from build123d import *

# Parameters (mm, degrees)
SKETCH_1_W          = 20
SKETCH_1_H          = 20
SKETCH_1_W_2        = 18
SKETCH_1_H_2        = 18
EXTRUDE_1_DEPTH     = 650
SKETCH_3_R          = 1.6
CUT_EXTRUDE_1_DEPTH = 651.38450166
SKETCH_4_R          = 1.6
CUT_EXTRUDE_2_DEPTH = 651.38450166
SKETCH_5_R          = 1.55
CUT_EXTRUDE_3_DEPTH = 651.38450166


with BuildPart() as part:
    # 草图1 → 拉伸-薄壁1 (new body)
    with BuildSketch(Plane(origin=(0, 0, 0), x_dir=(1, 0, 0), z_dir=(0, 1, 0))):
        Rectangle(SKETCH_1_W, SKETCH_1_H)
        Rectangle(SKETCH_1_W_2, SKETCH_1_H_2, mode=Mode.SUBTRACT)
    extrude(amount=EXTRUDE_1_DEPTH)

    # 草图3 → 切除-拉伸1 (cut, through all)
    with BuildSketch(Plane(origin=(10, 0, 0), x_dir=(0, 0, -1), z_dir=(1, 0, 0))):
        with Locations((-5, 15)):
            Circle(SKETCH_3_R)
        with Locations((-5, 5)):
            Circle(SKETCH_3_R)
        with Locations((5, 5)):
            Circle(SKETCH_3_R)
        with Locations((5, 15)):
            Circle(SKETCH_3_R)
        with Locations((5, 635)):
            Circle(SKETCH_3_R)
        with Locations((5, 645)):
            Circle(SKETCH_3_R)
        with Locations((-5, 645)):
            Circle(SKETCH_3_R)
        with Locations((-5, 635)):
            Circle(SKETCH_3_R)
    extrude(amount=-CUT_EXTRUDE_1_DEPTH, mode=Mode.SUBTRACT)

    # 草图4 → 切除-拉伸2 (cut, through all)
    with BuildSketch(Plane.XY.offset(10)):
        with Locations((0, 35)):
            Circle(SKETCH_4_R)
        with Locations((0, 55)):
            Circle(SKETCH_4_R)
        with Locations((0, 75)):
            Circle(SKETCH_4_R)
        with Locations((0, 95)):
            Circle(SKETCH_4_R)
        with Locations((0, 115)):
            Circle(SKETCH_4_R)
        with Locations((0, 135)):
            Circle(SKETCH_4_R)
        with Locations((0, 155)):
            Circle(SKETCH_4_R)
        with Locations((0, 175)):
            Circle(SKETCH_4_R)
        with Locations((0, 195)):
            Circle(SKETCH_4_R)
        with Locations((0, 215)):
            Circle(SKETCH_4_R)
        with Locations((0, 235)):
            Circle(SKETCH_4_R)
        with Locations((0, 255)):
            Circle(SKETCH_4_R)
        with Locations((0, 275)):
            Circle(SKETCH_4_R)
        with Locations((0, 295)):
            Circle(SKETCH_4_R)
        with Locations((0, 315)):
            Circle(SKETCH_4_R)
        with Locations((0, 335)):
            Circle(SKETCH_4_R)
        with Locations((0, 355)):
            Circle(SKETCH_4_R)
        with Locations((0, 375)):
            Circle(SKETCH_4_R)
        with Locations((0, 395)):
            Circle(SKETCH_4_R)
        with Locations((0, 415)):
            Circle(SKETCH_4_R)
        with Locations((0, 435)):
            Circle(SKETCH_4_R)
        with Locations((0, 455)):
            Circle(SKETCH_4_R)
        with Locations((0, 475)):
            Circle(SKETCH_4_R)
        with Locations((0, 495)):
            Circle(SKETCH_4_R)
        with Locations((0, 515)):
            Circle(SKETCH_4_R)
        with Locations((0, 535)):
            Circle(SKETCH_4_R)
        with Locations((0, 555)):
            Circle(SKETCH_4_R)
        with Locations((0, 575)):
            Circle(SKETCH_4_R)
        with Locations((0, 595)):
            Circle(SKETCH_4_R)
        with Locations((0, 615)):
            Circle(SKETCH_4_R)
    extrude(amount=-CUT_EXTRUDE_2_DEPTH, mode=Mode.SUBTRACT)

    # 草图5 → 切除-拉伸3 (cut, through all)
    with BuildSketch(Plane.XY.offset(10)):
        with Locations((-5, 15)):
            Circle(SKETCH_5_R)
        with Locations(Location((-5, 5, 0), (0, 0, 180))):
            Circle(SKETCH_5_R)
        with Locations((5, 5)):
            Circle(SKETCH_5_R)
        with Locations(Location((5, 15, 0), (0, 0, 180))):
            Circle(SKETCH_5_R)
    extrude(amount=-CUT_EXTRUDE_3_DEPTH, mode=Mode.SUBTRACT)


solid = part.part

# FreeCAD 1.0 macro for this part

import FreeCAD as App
import Part
import Sketcher
from FreeCAD import Vector

doc = App.newDocument("Part")
body = doc.addObject("PartDesign::Body", "Body")

sketch1 = body.newObject("Sketcher::SketchObject", "Sketch")
sketch1.AttachmentSupport = (doc.getObject("XZ_Plane"), [""])
sketch1.MapMode = "FlatFace"
sketch1.addGeometry([
    Part.LineSegment(Vector(-10, -10, 0), Vector(-10, 10, 0)),
    Part.LineSegment(Vector(-10, 10, 0), Vector(10, 10, 0)),
    Part.LineSegment(Vector(10, 10, 0), Vector(10, -10, 0)),
    Part.LineSegment(Vector(10, -10, 0), Vector(-10, -10, 0)),
    Part.LineSegment(Vector(9, 9, 0), Vector(-9, 9, 0)),
    Part.LineSegment(Vector(-9, 9, 0), Vector(-9, -9, 0)),
    Part.LineSegment(Vector(-9, -9, 0), Vector(9, -9, 0)),
    Part.LineSegment(Vector(9, -9, 0), Vector(9, 9, 0)),
], False)
sketch1.addConstraint([
    Sketcher.Constraint("Coincident", 0, 2, 1, 1),
    Sketcher.Constraint("Coincident", 1, 2, 2, 1),
    Sketcher.Constraint("Coincident", 2, 2, 3, 1),
    Sketcher.Constraint("Coincident", 3, 2, 0, 1),
    Sketcher.Constraint("Coincident", 4, 2, 5, 1),
    Sketcher.Constraint("Coincident", 5, 2, 6, 1),
    Sketcher.Constraint("Coincident", 6, 2, 7, 1),
    Sketcher.Constraint("Coincident", 7, 2, 4, 1),
    Sketcher.Constraint("Vertical", 0),
    Sketcher.Constraint("Horizontal", 1),
    Sketcher.Constraint("Vertical", 2),
    Sketcher.Constraint("Horizontal", 3),
    Sketcher.Constraint("Horizontal", 4),
    Sketcher.Constraint("Vertical", 5),
    Sketcher.Constraint("Horizontal", 6),
    Sketcher.Constraint("Vertical", 7),
    Sketcher.Constraint("Symmetric", 0, 2, 2, 2, -1, 1),
    Sketcher.Constraint("Symmetric", 4, 2, 6, 2, -1, 1),
    Sketcher.Constraint("Equal", 3, 0),
    Sketcher.Constraint("Equal", 6, 5),
    Sketcher.Constraint("DistanceX", 1, 1, 1, 2, 20.0),
    Sketcher.Constraint("DistanceX", 4, 2, 4, 1, 18.0),
])
pad1 = body.newObject("PartDesign::Pad", "Pad")
pad1.Profile = sketch1
pad1.Length = 650
pad1.Reversed = True

sketch2 = body.newObject("Sketcher::SketchObject", "Sketch001")
sketch2.AttachmentSupport = (doc.getObject("YZ_Plane"), [""])
sketch2.MapMode = "FlatFace"
sketch2.AttachmentOffset = App.Placement(Vector(0, 0, 10), App.Rotation())
sketch2.addGeometry([
    Part.Circle(Vector(15, 5, 0), Vector(0, 0, 1), 1.6),
    Part.Circle(Vector(5, 5, 0), Vector(0, 0, 1), 1.6),
    Part.Circle(Vector(5, -5, 0), Vector(0, 0, 1), 1.6),
    Part.Circle(Vector(15, -5, 0), Vector(0, 0, 1), 1.6),
    Part.Circle(Vector(635, -5, 0), Vector(0, 0, 1), 1.6),
    Part.Circle(Vector(645, -5, 0), Vector(0, 0, 1), 1.6),
    Part.Circle(Vector(645, 5, 0), Vector(0, 0, 1), 1.6),
    Part.Circle(Vector(635, 5, 0), Vector(0, 0, 1), 1.6),
], False)
sketch2.addConstraint([
    Sketcher.Constraint("Equal", 0, 1),
    Sketcher.Constraint("Equal", 1, 2),
    Sketcher.Constraint("Equal", 2, 3),
    Sketcher.Constraint("Equal", 3, 4),
    Sketcher.Constraint("Equal", 4, 5),
    Sketcher.Constraint("Equal", 5, 6),
    Sketcher.Constraint("Equal", 6, 7),
    Sketcher.Constraint("Symmetric", 1, 3, 2, 3, -1),
    Sketcher.Constraint("Symmetric", 0, 3, 3, 3, -1),
    Sketcher.Constraint("Symmetric", 5, 3, 6, 3, -1),
    Sketcher.Constraint("Symmetric", 4, 3, 7, 3, -1),
    Sketcher.Constraint("Horizontal", 0, 3, 1, 3),
    Sketcher.Constraint("Horizontal", 3, 3, 4, 3),
    Sketcher.Constraint("Horizontal", 4, 3, 5, 3),
    Sketcher.Constraint("Diameter", 0, 3.2),
    Sketcher.Constraint("DistanceX", -1, 1, 0, 3, 15.0),
    Sketcher.Constraint("DistanceY", -1, 1, 0, 3, 5.0),
    Sketcher.Constraint("DistanceX", -1, 1, 1, 3, 5.0),
    Sketcher.Constraint("DistanceX", -1, 1, 4, 3, 635.0),
    Sketcher.Constraint("DistanceX", -1, 1, 5, 3, 645.0),
])
pocket1 = body.newObject("PartDesign::Pocket", "Pocket")
pocket1.Profile = sketch2
pocket1.Type = "ThroughAll"

sketch3 = body.newObject("Sketcher::SketchObject", "Sketch002")
sketch3.AttachmentSupport = (doc.getObject("XY_Plane"), [""])
sketch3.MapMode = "FlatFace"
sketch3.AttachmentOffset = App.Placement(Vector(0, 0, 10), App.Rotation())
sketch3.addGeometry([
    Part.Circle(Vector(0, 35, 0), Vector(0, 0, 1), 1.6),
    Part.Circle(Vector(0, 55, 0), Vector(0, 0, 1), 1.6),
    Part.Circle(Vector(0, 75, 0), Vector(0, 0, 1), 1.6),
    Part.Circle(Vector(0, 95, 0), Vector(0, 0, 1), 1.6),
    Part.Circle(Vector(0, 115, 0), Vector(0, 0, 1), 1.6),
    Part.Circle(Vector(0, 135, 0), Vector(0, 0, 1), 1.6),
    Part.Circle(Vector(0, 155, 0), Vector(0, 0, 1), 1.6),
    Part.Circle(Vector(0, 175, 0), Vector(0, 0, 1), 1.6),
    Part.Circle(Vector(0, 195, 0), Vector(0, 0, 1), 1.6),
    Part.Circle(Vector(0, 215, 0), Vector(0, 0, 1), 1.6),
    Part.Circle(Vector(0, 235, 0), Vector(0, 0, 1), 1.6),
    Part.Circle(Vector(0, 255, 0), Vector(0, 0, 1), 1.6),
    Part.Circle(Vector(0, 275, 0), Vector(0, 0, 1), 1.6),
    Part.Circle(Vector(0, 295, 0), Vector(0, 0, 1), 1.6),
    Part.Circle(Vector(0, 315, 0), Vector(0, 0, 1), 1.6),
    Part.Circle(Vector(0, 335, 0), Vector(0, 0, 1), 1.6),
    Part.Circle(Vector(0, 355, 0), Vector(0, 0, 1), 1.6),
    Part.Circle(Vector(0, 375, 0), Vector(0, 0, 1), 1.6),
    Part.Circle(Vector(0, 395, 0), Vector(0, 0, 1), 1.6),
    Part.Circle(Vector(0, 415, 0), Vector(0, 0, 1), 1.6),
    Part.Circle(Vector(0, 435, 0), Vector(0, 0, 1), 1.6),
    Part.Circle(Vector(0, 455, 0), Vector(0, 0, 1), 1.6),
    Part.Circle(Vector(0, 475, 0), Vector(0, 0, 1), 1.6),
    Part.Circle(Vector(0, 495, 0), Vector(0, 0, 1), 1.6),
    Part.Circle(Vector(0, 515, 0), Vector(0, 0, 1), 1.6),
    Part.Circle(Vector(0, 535, 0), Vector(0, 0, 1), 1.6),
    Part.Circle(Vector(0, 555, 0), Vector(0, 0, 1), 1.6),
    Part.Circle(Vector(0, 575, 0), Vector(0, 0, 1), 1.6),
    Part.Circle(Vector(0, 595, 0), Vector(0, 0, 1), 1.6),
    Part.Circle(Vector(0, 615, 0), Vector(0, 0, 1), 1.6),
], False)
sketch3.addConstraint([
    Sketcher.Constraint("Equal", 0, 1),
    Sketcher.Constraint("Equal", 1, 2),
    Sketcher.Constraint("Equal", 2, 3),
    Sketcher.Constraint("Equal", 3, 4),
    Sketcher.Constraint("Equal", 4, 5),
    Sketcher.Constraint("Equal", 5, 6),
    Sketcher.Constraint("Equal", 6, 7),
    Sketcher.Constraint("Equal", 7, 8),
    Sketcher.Constraint("Equal", 8, 9),
    Sketcher.Constraint("Equal", 9, 10),
    Sketcher.Constraint("Equal", 10, 11),
    Sketcher.Constraint("Equal", 11, 12),
    Sketcher.Constraint("Equal", 12, 13),
    Sketcher.Constraint("Equal", 13, 14),
    Sketcher.Constraint("Equal", 14, 15),
    Sketcher.Constraint("Equal", 15, 16),
    Sketcher.Constraint("Equal", 16, 17),
    Sketcher.Constraint("Equal", 17, 18),
    Sketcher.Constraint("Equal", 18, 19),
    Sketcher.Constraint("Equal", 19, 20),
    Sketcher.Constraint("Equal", 20, 21),
    Sketcher.Constraint("Equal", 21, 22),
    Sketcher.Constraint("Equal", 22, 23),
    Sketcher.Constraint("Equal", 23, 24),
    Sketcher.Constraint("Equal", 24, 25),
    Sketcher.Constraint("Equal", 25, 26),
    Sketcher.Constraint("Equal", 26, 27),
    Sketcher.Constraint("Equal", 27, 28),
    Sketcher.Constraint("Equal", 28, 29),
    Sketcher.Constraint("PointOnObject", 0, 3, -2),
    Sketcher.Constraint("PointOnObject", 1, 3, -2),
    Sketcher.Constraint("PointOnObject", 2, 3, -2),
    Sketcher.Constraint("PointOnObject", 3, 3, -2),
    Sketcher.Constraint("PointOnObject", 4, 3, -2),
    Sketcher.Constraint("PointOnObject", 5, 3, -2),
    Sketcher.Constraint("PointOnObject", 6, 3, -2),
    Sketcher.Constraint("PointOnObject", 7, 3, -2),
    Sketcher.Constraint("PointOnObject", 8, 3, -2),
    Sketcher.Constraint("PointOnObject", 9, 3, -2),
    Sketcher.Constraint("PointOnObject", 10, 3, -2),
    Sketcher.Constraint("PointOnObject", 11, 3, -2),
    Sketcher.Constraint("PointOnObject", 12, 3, -2),
    Sketcher.Constraint("PointOnObject", 13, 3, -2),
    Sketcher.Constraint("PointOnObject", 14, 3, -2),
    Sketcher.Constraint("PointOnObject", 15, 3, -2),
    Sketcher.Constraint("PointOnObject", 16, 3, -2),
    Sketcher.Constraint("PointOnObject", 17, 3, -2),
    Sketcher.Constraint("PointOnObject", 18, 3, -2),
    Sketcher.Constraint("PointOnObject", 19, 3, -2),
    Sketcher.Constraint("PointOnObject", 20, 3, -2),
    Sketcher.Constraint("PointOnObject", 21, 3, -2),
    Sketcher.Constraint("PointOnObject", 22, 3, -2),
    Sketcher.Constraint("PointOnObject", 23, 3, -2),
    Sketcher.Constraint("PointOnObject", 24, 3, -2),
    Sketcher.Constraint("PointOnObject", 25, 3, -2),
    Sketcher.Constraint("PointOnObject", 26, 3, -2),
    Sketcher.Constraint("PointOnObject", 27, 3, -2),
    Sketcher.Constraint("PointOnObject", 28, 3, -2),
    Sketcher.Constraint("PointOnObject", 29, 3, -2),
    Sketcher.Constraint("Diameter", 0, 3.2),
    Sketcher.Constraint("DistanceY", -1, 1, 0, 3, 35.0),
    Sketcher.Constraint("DistanceY", -1, 1, 1, 3, 55.0),
    Sketcher.Constraint("DistanceY", -1, 1, 2, 3, 75.0),
    Sketcher.Constraint("DistanceY", -1, 1, 3, 3, 95.0),
    Sketcher.Constraint("DistanceY", -1, 1, 4, 3, 115.0),
    Sketcher.Constraint("DistanceY", -1, 1, 5, 3, 135.0),
    Sketcher.Constraint("DistanceY", -1, 1, 6, 3, 155.0),
    Sketcher.Constraint("DistanceY", -1, 1, 7, 3, 175.0),
    Sketcher.Constraint("DistanceY", -1, 1, 8, 3, 195.0),
    Sketcher.Constraint("DistanceY", -1, 1, 9, 3, 215.0),
    Sketcher.Constraint("DistanceY", -1, 1, 10, 3, 235.0),
    Sketcher.Constraint("DistanceY", -1, 1, 11, 3, 255.0),
    Sketcher.Constraint("DistanceY", -1, 1, 12, 3, 275.0),
    Sketcher.Constraint("DistanceY", -1, 1, 13, 3, 295.0),
    Sketcher.Constraint("DistanceY", -1, 1, 14, 3, 315.0),
    Sketcher.Constraint("DistanceY", -1, 1, 15, 3, 335.0),
    Sketcher.Constraint("DistanceY", -1, 1, 16, 3, 355.0),
    Sketcher.Constraint("DistanceY", -1, 1, 17, 3, 375.0),
    Sketcher.Constraint("DistanceY", -1, 1, 18, 3, 395.0),
    Sketcher.Constraint("DistanceY", -1, 1, 19, 3, 415.0),
    Sketcher.Constraint("DistanceY", -1, 1, 20, 3, 435.0),
    Sketcher.Constraint("DistanceY", -1, 1, 21, 3, 455.0),
    Sketcher.Constraint("DistanceY", -1, 1, 22, 3, 475.0),
    Sketcher.Constraint("DistanceY", -1, 1, 23, 3, 495.0),
    Sketcher.Constraint("DistanceY", -1, 1, 24, 3, 515.0),
    Sketcher.Constraint("DistanceY", -1, 1, 25, 3, 535.0),
    Sketcher.Constraint("DistanceY", -1, 1, 26, 3, 555.0),
    Sketcher.Constraint("DistanceY", -1, 1, 27, 3, 575.0),
    Sketcher.Constraint("DistanceY", -1, 1, 28, 3, 595.0),
    Sketcher.Constraint("DistanceY", -1, 1, 29, 3, 615.0),
])
pocket2 = body.newObject("PartDesign::Pocket", "Pocket001")
pocket2.Profile = sketch3
pocket2.Type = "ThroughAll"

sketch4 = body.newObject("Sketcher::SketchObject", "Sketch003")
sketch4.AttachmentSupport = (doc.getObject("XY_Plane"), [""])
sketch4.MapMode = "FlatFace"
sketch4.AttachmentOffset = App.Placement(Vector(0, 0, 10), App.Rotation())
sketch4.addGeometry([
    Part.Circle(Vector(-5, 15, 0), Vector(0, 0, 1), 1.55),
    Part.Circle(Vector(-5, 5, 0), Vector(0, 0, 1), 1.55),
    Part.Circle(Vector(5, 5, 0), Vector(0, 0, 1), 1.55),
    Part.Circle(Vector(5, 15, 0), Vector(0, 0, 1), 1.55),
], False)
sketch4.addConstraint([
    Sketcher.Constraint("Equal", 0, 1),
    Sketcher.Constraint("Equal", 1, 2),
    Sketcher.Constraint("Equal", 2, 3),
    Sketcher.Constraint("Symmetric", 1, 3, 2, 3, -2),
    Sketcher.Constraint("Symmetric", 0, 3, 3, 3, -2),
    Sketcher.Constraint("Vertical", 0, 3, 1, 3),
    Sketcher.Constraint("Diameter", 0, 3.1),
    Sketcher.Constraint("DistanceX", 0, 3, -1, 1, 5.0),
    Sketcher.Constraint("DistanceY", -1, 1, 0, 3, 15.0),
    Sketcher.Constraint("DistanceY", -1, 1, 1, 3, 5.0),
])
pocket3 = body.newObject("PartDesign::Pocket", "Pocket002")
pocket3.Profile = sketch4
pocket3.Type = "ThroughAll"

doc.recompute()
